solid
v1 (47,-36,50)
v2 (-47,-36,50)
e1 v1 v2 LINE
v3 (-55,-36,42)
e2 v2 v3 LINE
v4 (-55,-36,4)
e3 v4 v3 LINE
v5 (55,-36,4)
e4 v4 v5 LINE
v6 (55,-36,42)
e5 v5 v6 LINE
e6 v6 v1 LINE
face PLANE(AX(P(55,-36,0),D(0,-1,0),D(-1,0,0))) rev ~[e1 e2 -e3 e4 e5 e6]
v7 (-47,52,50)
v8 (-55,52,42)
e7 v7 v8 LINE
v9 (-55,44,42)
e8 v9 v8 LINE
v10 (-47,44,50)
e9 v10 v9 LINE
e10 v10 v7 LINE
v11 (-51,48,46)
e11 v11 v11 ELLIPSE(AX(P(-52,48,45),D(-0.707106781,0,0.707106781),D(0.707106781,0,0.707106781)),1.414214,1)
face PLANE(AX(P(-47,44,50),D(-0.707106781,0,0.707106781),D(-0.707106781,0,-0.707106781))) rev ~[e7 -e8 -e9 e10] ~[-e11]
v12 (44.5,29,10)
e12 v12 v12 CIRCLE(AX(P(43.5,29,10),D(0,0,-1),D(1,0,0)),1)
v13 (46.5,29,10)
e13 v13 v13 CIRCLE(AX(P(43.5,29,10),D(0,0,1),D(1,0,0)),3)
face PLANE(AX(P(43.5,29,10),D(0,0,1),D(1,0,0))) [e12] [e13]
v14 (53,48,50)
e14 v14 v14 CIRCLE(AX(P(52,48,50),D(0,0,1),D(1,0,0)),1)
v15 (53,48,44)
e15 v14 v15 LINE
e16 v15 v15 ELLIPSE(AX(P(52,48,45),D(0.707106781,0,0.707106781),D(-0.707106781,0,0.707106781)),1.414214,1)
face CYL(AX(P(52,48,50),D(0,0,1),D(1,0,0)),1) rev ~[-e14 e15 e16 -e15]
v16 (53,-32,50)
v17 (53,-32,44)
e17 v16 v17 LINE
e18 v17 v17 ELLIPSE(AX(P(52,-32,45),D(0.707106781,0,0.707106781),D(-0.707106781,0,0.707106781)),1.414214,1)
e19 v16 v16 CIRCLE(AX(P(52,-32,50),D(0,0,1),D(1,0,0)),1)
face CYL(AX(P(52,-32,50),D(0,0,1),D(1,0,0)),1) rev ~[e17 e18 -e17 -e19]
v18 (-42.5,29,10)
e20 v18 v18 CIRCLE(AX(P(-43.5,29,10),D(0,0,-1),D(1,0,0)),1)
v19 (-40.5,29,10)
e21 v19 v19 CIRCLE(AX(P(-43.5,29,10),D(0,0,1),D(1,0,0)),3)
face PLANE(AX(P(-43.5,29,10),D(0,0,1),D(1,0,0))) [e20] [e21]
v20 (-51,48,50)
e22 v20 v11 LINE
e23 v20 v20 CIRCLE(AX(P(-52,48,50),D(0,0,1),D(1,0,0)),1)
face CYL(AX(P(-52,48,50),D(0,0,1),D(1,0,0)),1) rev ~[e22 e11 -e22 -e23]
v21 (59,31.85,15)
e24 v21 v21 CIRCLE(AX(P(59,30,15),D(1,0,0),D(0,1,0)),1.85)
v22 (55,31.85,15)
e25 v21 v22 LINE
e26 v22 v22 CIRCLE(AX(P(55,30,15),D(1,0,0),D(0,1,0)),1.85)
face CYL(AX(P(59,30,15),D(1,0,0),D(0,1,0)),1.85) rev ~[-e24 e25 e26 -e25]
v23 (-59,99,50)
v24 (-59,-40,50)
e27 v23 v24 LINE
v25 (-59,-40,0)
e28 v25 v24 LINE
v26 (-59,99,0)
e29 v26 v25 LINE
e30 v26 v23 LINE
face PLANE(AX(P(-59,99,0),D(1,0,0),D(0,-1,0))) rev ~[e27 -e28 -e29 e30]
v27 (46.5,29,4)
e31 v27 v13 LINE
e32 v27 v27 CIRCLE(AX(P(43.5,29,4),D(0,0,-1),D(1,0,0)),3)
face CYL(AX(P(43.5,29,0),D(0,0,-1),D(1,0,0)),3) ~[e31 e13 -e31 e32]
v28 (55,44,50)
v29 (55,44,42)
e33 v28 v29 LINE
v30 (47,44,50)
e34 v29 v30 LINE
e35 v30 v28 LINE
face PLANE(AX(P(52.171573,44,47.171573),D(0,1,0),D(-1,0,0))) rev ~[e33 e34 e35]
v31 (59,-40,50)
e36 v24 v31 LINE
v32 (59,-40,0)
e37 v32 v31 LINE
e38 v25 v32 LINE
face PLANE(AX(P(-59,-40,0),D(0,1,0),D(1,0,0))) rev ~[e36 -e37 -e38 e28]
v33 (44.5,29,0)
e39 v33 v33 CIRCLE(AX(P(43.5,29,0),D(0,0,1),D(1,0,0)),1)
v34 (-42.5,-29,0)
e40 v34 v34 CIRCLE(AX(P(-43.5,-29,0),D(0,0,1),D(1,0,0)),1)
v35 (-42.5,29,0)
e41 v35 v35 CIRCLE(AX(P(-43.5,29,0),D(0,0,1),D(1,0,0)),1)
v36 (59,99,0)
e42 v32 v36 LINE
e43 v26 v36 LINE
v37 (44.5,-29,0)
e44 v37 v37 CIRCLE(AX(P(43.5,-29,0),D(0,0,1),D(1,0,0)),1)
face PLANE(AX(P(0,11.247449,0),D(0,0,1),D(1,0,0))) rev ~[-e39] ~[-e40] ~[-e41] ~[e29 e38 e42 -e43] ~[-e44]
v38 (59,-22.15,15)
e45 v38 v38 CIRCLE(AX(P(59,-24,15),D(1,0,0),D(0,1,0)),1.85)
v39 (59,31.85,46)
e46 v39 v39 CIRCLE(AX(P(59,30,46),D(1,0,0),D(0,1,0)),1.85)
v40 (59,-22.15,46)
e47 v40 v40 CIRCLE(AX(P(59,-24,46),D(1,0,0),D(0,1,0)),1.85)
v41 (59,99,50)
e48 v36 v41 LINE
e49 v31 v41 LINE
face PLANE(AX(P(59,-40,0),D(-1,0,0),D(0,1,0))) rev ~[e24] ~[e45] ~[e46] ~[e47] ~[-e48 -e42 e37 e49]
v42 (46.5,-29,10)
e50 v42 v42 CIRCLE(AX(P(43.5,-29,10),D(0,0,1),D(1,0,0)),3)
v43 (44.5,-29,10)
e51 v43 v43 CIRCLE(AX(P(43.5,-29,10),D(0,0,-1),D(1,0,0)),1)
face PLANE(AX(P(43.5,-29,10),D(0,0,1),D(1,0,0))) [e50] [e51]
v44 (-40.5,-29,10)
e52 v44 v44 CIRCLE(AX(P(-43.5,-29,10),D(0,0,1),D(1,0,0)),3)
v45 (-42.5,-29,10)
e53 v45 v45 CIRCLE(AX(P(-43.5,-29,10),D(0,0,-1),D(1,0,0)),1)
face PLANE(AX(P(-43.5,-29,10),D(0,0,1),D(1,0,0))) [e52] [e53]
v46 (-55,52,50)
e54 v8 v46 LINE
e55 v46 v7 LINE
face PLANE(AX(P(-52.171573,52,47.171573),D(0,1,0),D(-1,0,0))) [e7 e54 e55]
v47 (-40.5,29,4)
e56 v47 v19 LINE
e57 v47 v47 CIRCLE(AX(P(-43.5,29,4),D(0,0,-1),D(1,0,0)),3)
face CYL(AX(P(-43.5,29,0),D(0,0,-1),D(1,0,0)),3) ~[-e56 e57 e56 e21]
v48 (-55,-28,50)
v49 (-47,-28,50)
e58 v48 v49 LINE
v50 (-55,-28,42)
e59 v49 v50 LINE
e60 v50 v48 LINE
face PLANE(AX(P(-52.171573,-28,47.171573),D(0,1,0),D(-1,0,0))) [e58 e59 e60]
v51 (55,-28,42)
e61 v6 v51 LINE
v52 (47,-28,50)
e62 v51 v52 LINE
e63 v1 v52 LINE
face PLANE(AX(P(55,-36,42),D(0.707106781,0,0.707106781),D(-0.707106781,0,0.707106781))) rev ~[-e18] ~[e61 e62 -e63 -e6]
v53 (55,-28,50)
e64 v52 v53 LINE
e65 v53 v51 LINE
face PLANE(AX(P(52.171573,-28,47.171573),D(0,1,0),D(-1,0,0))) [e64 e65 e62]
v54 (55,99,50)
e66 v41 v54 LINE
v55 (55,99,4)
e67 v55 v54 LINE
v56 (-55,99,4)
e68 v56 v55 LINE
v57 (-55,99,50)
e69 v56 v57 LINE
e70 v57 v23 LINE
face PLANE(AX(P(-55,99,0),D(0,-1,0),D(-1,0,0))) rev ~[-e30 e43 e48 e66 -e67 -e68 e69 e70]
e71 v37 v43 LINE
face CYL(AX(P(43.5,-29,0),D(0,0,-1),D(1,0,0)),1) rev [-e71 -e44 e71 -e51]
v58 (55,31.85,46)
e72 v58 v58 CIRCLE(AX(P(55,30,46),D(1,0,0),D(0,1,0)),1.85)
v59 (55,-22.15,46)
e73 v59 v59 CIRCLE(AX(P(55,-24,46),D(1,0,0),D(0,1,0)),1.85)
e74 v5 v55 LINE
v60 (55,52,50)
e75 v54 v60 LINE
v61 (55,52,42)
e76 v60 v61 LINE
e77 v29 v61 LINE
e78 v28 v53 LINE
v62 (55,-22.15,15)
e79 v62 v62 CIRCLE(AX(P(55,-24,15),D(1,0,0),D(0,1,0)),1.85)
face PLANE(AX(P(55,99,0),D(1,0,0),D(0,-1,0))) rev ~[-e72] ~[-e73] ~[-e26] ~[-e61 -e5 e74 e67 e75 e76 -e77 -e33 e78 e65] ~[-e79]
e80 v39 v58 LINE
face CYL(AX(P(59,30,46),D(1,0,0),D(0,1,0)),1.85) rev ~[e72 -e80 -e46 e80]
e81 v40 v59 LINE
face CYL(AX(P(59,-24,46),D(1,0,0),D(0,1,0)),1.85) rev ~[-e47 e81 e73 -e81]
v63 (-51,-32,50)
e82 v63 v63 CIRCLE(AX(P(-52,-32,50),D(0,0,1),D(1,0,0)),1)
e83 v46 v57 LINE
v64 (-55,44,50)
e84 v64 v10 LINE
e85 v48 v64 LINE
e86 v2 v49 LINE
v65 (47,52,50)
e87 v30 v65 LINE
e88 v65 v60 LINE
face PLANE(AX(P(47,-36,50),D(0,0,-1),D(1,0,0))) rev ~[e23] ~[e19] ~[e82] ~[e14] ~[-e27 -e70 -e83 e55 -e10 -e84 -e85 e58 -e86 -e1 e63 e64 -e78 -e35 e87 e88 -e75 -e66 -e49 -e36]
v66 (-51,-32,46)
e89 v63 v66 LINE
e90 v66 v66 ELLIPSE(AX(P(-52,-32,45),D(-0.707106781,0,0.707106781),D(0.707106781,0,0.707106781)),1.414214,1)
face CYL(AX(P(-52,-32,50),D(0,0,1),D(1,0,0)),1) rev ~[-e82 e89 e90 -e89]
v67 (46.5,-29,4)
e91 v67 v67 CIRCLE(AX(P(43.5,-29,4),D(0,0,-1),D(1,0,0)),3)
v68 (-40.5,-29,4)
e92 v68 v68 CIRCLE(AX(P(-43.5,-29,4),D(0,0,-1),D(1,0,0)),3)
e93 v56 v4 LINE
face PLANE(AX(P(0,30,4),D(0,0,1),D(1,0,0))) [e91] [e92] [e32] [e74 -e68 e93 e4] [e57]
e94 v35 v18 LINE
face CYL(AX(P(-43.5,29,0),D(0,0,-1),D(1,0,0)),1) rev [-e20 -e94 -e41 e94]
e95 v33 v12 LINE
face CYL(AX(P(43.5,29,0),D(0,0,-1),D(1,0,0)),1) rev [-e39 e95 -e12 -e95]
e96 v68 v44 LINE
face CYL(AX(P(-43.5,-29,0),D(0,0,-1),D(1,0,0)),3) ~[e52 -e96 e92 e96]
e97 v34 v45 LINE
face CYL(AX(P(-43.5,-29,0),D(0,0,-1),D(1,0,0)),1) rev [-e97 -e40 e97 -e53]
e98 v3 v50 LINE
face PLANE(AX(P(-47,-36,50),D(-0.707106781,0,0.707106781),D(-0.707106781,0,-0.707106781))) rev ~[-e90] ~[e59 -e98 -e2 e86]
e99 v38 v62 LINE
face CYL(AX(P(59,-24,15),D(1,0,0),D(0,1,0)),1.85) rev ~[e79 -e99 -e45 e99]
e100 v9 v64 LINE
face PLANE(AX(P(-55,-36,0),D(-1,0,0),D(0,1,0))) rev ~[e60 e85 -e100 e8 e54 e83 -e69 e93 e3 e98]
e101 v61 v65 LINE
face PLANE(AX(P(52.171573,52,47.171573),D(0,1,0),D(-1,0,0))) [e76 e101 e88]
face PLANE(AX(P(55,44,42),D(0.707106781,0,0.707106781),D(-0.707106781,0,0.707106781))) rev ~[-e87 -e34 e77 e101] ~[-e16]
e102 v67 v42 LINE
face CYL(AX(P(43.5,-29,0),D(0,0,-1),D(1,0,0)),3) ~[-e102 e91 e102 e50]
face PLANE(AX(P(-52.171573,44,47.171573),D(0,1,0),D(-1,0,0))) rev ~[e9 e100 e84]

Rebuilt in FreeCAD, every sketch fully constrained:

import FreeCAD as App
import Part
import Sketcher
Q = App.Units.Quantity


def add_polygon(sketch, points):
    """Adds a closed chain of lines whose ends are joined by coincident constraints."""
    first, n = sketch.GeometryCount, len(points)
    for a, b in zip(points, points[1:] + points[:1]):
        sketch.addGeometry(Part.LineSegment(App.Vector(*a, 0), App.Vector(*b, 0)), False)
    for i in range(n):
        sketch.addConstraint(Sketcher.Constraint("Coincident", first + i, 2, first + (i + 1) % n, 1))

doc = App.newDocument("Part")
params = doc.addObject("Spreadsheet::Sheet", "Params")
for row, (alias, value) in enumerate([
    ("sketch1_width", "117 mm"),
    ("sketch1_height", "138 mm"),
    ("pad1_length", "4 mm"),
    ("sketch2_diameter", "6 mm"),
    ("pad2_length", "10 mm"),
    ("sketch3_diameter", "2 mm"),
    ("sketch4_width", "118 mm"),
    ("sketch4_width2", "4 mm"),
    ("sketch4_height", "139 mm"),
    ("sketch4_height2", "135 mm"),
    ("pad3_length", "50 mm"),
    ("sketch5_width", "8 mm"),
    ("pad4_length", "8 mm"),
    ("linearpattern_pitch", "80 mm"),
    ("sketch6_diameter", "2 mm"),
    ("pocket2_length", "10 mm"),
    ("sketch7_diameter", "3.7 mm"),
    ("pocket3_length", "7 mm"),
], start=1):
    params.set(f"A{row}", alias)
    params.set(f"B{row}", "=" + value)
    params.setAlias(f"B{row}", alias)

body = doc.addObject("PartDesign::Body", "Body")

# Sketch on XY plane
sketch1 = body.newObject("Sketcher::SketchObject", "Sketch")
sketch1.AttachmentSupport = (doc.getObject("XY_Plane"), [""])
sketch1.MapMode = "FlatFace"
add_polygon(sketch1, [(-58, 99), (-58, -39), (58, -39), (58, 99)])  # lines 0-3
sketch1.addConstraint([
    Sketcher.Constraint("Vertical", 0),
    Sketcher.Constraint("Horizontal", 1),
    Sketcher.Constraint("Vertical", 2),
    Sketcher.Constraint("Horizontal", 3),
    Sketcher.Constraint("DistanceX", 1, 1, 1, 2, Q("117 mm")),
    Sketcher.Constraint("DistanceY", 0, 2, 0, 1, Q("138 mm")),
    Sketcher.Constraint("DistanceY", 0, 2, -1, 1, Q("39 mm")),
    Sketcher.Constraint("DistanceX", 0, 2, -1, 1, Q("58.5 mm")),
])
sketch1.setExpression("Constraints[8]", "Params.sketch1_width")
sketch1.setExpression("Constraints[9]", "Params.sketch1_height")
pad1 = body.newObject("PartDesign::Pad", "Pad")
pad1.Profile = sketch1
pad1.setExpression("Length", "Params.pad1_length")

# Sketch on XY plane
sketch2 = body.newObject("Sketcher::SketchObject", "Sketch001")
sketch2.AttachmentSupport = (doc.getObject("XY_Plane"), [""])
sketch2.MapMode = "FlatFace"
sketch2.addGeometry([
    Part.Circle(App.Vector(43.5, -29, 0), App.Vector(0, 0, 1), 3),
    Part.Circle(App.Vector(43.5, 29, 0), App.Vector(0, 0, 1), 3),
    Part.Circle(App.Vector(-43.5, 29, 0), App.Vector(0, 0, 1), 3),
    Part.Circle(App.Vector(-43.5, -29, 0), App.Vector(0, 0, 1), 3),
], False)
sketch2.addConstraint([
    Sketcher.Constraint("Equal", 0, 1),
    Sketcher.Constraint("Equal", 1, 2),
    Sketcher.Constraint("Equal", 2, 3),
    Sketcher.Constraint("Symmetric", 0, 3, 2, 3, -1, 1),
    Sketcher.Constraint("Symmetric", 1, 3, 3, 3, -1, 1),
    Sketcher.Constraint("Symmetric", 1, 3, 2, 3, -2),
    Sketcher.Constraint("Diameter", 0, Q("6 mm")),
    Sketcher.Constraint("DistanceY", 0, 3, -1, 1, Q("29 mm")),
    Sketcher.Constraint("DistanceX", 2, 3, 1, 3, Q("87 mm")),
])
sketch2.setExpression("Constraints[6]", "Params.sketch2_diameter")
pad2 = body.newObject("PartDesign::Pad", "Pad001")
pad2.Profile = sketch2
pad2.setExpression("Length", "Params.pad2_length")

# Sketch on XY plane
sketch3 = body.newObject("Sketcher::SketchObject", "Sketch002")
sketch3.AttachmentSupport = (doc.getObject("XY_Plane"), [""])
sketch3.MapMode = "FlatFace"
sketch3.addGeometry([
    Part.Circle(App.Vector(43.5, -29, 0), App.Vector(0, 0, 1), 1),
    Part.Circle(App.Vector(43.5, 29, 0), App.Vector(0, 0, 1), 1),
    Part.Circle(App.Vector(-43.5, 29, 0), App.Vector(0, 0, 1), 1),
    Part.Circle(App.Vector(-43.5, -29, 0), App.Vector(0, 0, 1), 1),
], False)
sketch3.addConstraint([
    Sketcher.Constraint("Equal", 0, 1),
    Sketcher.Constraint("Equal", 1, 2),
    Sketcher.Constraint("Equal", 2, 3),
    Sketcher.Constraint("Symmetric", 0, 3, 2, 3, -1, 1),
    Sketcher.Constraint("Symmetric", 1, 3, 3, 3, -1, 1),
    Sketcher.Constraint("Symmetric", 1, 3, 2, 3, -2),
    Sketcher.Constraint("Diameter", 0, Q("2 mm")),
    Sketcher.Constraint("DistanceY", 0, 3, -1, 1, Q("29 mm")),
    Sketcher.Constraint("DistanceX", 2, 3, 1, 3, Q("87 mm")),
])
sketch3.setExpression("Constraints[6]", "Params.sketch3_diameter")
pocket1 = body.newObject("PartDesign::Pocket", "Pocket")
pocket1.Profile = sketch3
pocket1.Type = "ThroughAll"
pocket1.Midplane = True

# Sketch on XY plane
sketch4 = body.newObject("Sketcher::SketchObject", "Sketch003")
sketch4.AttachmentSupport = (doc.getObject("XY_Plane"), [""])
sketch4.MapMode = "FlatFace"
add_polygon(sketch4, [(-59, -40), (59, -40), (59, 99), (55, 99), (55, -36), (-55, -36), (-55, 99), (-59, 99)])  # lines 0-7
sketch4.addConstraint([
    Sketcher.Constraint("Horizontal", 0),
    Sketcher.Constraint("Vertical", 1),
    Sketcher.Constraint("Horizontal", 2),
    Sketcher.Constraint("Vertical", 3),
    Sketcher.Constraint("Horizontal", 4),
    Sketcher.Constraint("Vertical", 5),
    Sketcher.Constraint("Horizontal", 6),
    Sketcher.Constraint("Vertical", 7),
    Sketcher.Constraint("Symmetric", 2, 2, 5, 2, -2),
    Sketcher.Constraint("Equal", 2, 6),
    Sketcher.Constraint("DistanceX", 0, 1, 0, 2, Q("118 mm")),
    Sketcher.Constraint("DistanceX", 2, 2, 2, 1, Q("4 mm")),
    Sketcher.Constraint("DistanceY", 1, 1, 1, 2, Q("139 mm")),
    Sketcher.Constraint("DistanceY", 3, 2, 3, 1, Q("135 mm")),
    Sketcher.Constraint("DistanceY", 0, 2, -1, 1, Q("40 mm")),
])
sketch4.setExpression("Constraints[18]", "Params.sketch4_width")
sketch4.setExpression("Constraints[19]", "Params.sketch4_width2")
sketch4.setExpression("Constraints[20]", "Params.sketch4_height")
sketch4.setExpression("Constraints[21]", "Params.sketch4_height2")
pad3 = body.newObject("PartDesign::Pad", "Pad002")
pad3.Profile = sketch4
pad3.setExpression("Length", "Params.pad3_length")

# Sketch on XZ plane
sketch5 = body.newObject("Sketcher::SketchObject", "Sketch004")
sketch5.AttachmentSupport = (doc.getObject("XZ_Plane"), [""])
sketch5.MapMode = "FlatFace"
sketch5.AttachmentOffset = App.Placement(App.Vector(0, 0, 36), App.Rotation())
add_polygon(sketch5, [(55, 50), (55, 42), (47, 50)])  # lines 0-2
add_polygon(sketch5, [(-47, 50), (-55, 42), (-55, 50)])  # lines 3-5
sketch5.addConstraint([
    Sketcher.Constraint("Vertical", 0),
    Sketcher.Constraint("Horizontal", 2),
    Sketcher.Constraint("Vertical", 4),
    Sketcher.Constraint("Horizontal", 5),
    Sketcher.Constraint("Symmetric", 0, 2, 3, 2, -2),
    Sketcher.Constraint("Symmetric", 1, 2, 5, 2, -2),
    Sketcher.Constraint("Perpendicular", 1, 3),
    Sketcher.Constraint("DistanceX", 2, 1, 2, 2, Q("8 mm")),
    Sketcher.Constraint("DistanceX", -1, 1, 0, 2, Q("55 mm")),
    Sketcher.Constraint("DistanceY", -1, 1, 0, 2, Q("42 mm")),
])
sketch5.setExpression("Constraints[13]", "Params.sketch5_width")
pad4 = body.newObject("PartDesign::Pad", "Pad003")
pad4.Profile = sketch5
pad4.setExpression("Length", "Params.pad4_length")
pad4.Reversed = True
doc.recompute()

linearpattern = body.newObject("PartDesign::LinearPattern", "LinearPattern")
linearpattern.Originals = [pad4]
linearpattern.Direction = (doc.getObject("Y_Axis"), [""])
linearpattern.Mode = "offset"
linearpattern.setExpression("Offset", "Params.linearpattern_pitch")
linearpattern.Occurrences = 2
body.Tip = linearpattern

# Sketch on XY plane
sketch6 = body.newObject("Sketcher::SketchObject", "Sketch005")
sketch6.AttachmentSupport = (doc.getObject("XY_Plane"), [""])
sketch6.MapMode = "FlatFace"
sketch6.AttachmentOffset = App.Placement(App.Vector(0, 0, 50), App.Rotation())
sketch6.addGeometry([
    Part.Circle(App.Vector(52, -32, 0), App.Vector(0, 0, 1), 1),
    Part.Circle(App.Vector(-52, -32, 0), App.Vector(0, 0, 1), 1),
    Part.Circle(App.Vector(-52, 48, 0), App.Vector(0, 0, 1), 1),
    Part.Circle(App.Vector(52, 48, 0), App.Vector(0, 0, 1), 1),
], False)
sketch6.addConstraint([
    Sketcher.Constraint("Equal", 0, 1),
    Sketcher.Constraint("Equal", 1, 2),
    Sketcher.Constraint("Equal", 2, 3),
    Sketcher.Constraint("Symmetric", 0, 3, 1, 3, -2),
    Sketcher.Constraint("Symmetric", 2, 3, 3, 3, -2),
    Sketcher.Constraint("Vertical", 1, 3, 2, 3),
    Sketcher.Constraint("Diameter", 0, Q("2 mm")),
    Sketcher.Constraint("DistanceX", -1, 1, 0, 3, Q("52 mm")),
    Sketcher.Constraint("DistanceY", 0, 3, -1, 1, Q("32 mm")),
    Sketcher.Constraint("DistanceY", -1, 1, 2, 3, Q("48 mm")),
])
sketch6.setExpression("Constraints[6]", "Params.sketch6_diameter")
pocket2 = body.newObject("PartDesign::Pocket", "Pocket001")
pocket2.Profile = sketch6
pocket2.setExpression("Length", "Params.pocket2_length")

# Sketch on YZ plane
sketch7 = body.newObject("Sketcher::SketchObject", "Sketch006")
sketch7.AttachmentSupport = (doc.getObject("YZ_Plane"), [""])
sketch7.MapMode = "FlatFace"
sketch7.AttachmentOffset = App.Placement(App.Vector(0, 0, 59), App.Rotation())
sketch7.addGeometry([
    Part.Circle(App.Vector(-24, 15, 0), App.Vector(0, 0, 1), 1.9),
    Part.Circle(App.Vector(30, 15, 0), App.Vector(0, 0, 1), 1.9),
    Part.Circle(App.Vector(30, 46, 0), App.Vector(0, 0, 1), 1.9),
    Part.Circle(App.Vector(-24, 46, 0), App.Vector(0, 0, 1), 1.9),
], False)
sketch7.addConstraint([
    Sketcher.Constraint("Equal", 0, 1),
    Sketcher.Constraint("Equal", 1, 2),
    Sketcher.Constraint("Equal", 2, 3),
    Sketcher.Constraint("Horizontal", 0, 3, 1, 3),
    Sketcher.Constraint("Horizontal", 2, 3, 3, 3),
    Sketcher.Constraint("Vertical", 1, 3, 2, 3),
    Sketcher.Constraint("Vertical", 0, 3, 3, 3),
    Sketcher.Constraint("Diameter", 0, Q("3.7 mm")),
    Sketcher.Constraint("DistanceX", 0, 3, -1, 1, Q("24 mm")),
    Sketcher.Constraint("DistanceY", -1, 1, 0, 3, Q("15 mm")),
    Sketcher.Constraint("DistanceX", -1, 1, 1, 3, Q("30 mm")),
    Sketcher.Constraint("DistanceY", -1, 1, 2, 3, Q("46 mm")),
])
sketch7.setExpression("Constraints[7]", "Params.sketch7_diameter")
pocket3 = body.newObject("PartDesign::Pocket", "Pocket002")
pocket3.Profile = sketch7
pocket3.setExpression("Length", "Params.pocket3_length")

doc.recompute()
